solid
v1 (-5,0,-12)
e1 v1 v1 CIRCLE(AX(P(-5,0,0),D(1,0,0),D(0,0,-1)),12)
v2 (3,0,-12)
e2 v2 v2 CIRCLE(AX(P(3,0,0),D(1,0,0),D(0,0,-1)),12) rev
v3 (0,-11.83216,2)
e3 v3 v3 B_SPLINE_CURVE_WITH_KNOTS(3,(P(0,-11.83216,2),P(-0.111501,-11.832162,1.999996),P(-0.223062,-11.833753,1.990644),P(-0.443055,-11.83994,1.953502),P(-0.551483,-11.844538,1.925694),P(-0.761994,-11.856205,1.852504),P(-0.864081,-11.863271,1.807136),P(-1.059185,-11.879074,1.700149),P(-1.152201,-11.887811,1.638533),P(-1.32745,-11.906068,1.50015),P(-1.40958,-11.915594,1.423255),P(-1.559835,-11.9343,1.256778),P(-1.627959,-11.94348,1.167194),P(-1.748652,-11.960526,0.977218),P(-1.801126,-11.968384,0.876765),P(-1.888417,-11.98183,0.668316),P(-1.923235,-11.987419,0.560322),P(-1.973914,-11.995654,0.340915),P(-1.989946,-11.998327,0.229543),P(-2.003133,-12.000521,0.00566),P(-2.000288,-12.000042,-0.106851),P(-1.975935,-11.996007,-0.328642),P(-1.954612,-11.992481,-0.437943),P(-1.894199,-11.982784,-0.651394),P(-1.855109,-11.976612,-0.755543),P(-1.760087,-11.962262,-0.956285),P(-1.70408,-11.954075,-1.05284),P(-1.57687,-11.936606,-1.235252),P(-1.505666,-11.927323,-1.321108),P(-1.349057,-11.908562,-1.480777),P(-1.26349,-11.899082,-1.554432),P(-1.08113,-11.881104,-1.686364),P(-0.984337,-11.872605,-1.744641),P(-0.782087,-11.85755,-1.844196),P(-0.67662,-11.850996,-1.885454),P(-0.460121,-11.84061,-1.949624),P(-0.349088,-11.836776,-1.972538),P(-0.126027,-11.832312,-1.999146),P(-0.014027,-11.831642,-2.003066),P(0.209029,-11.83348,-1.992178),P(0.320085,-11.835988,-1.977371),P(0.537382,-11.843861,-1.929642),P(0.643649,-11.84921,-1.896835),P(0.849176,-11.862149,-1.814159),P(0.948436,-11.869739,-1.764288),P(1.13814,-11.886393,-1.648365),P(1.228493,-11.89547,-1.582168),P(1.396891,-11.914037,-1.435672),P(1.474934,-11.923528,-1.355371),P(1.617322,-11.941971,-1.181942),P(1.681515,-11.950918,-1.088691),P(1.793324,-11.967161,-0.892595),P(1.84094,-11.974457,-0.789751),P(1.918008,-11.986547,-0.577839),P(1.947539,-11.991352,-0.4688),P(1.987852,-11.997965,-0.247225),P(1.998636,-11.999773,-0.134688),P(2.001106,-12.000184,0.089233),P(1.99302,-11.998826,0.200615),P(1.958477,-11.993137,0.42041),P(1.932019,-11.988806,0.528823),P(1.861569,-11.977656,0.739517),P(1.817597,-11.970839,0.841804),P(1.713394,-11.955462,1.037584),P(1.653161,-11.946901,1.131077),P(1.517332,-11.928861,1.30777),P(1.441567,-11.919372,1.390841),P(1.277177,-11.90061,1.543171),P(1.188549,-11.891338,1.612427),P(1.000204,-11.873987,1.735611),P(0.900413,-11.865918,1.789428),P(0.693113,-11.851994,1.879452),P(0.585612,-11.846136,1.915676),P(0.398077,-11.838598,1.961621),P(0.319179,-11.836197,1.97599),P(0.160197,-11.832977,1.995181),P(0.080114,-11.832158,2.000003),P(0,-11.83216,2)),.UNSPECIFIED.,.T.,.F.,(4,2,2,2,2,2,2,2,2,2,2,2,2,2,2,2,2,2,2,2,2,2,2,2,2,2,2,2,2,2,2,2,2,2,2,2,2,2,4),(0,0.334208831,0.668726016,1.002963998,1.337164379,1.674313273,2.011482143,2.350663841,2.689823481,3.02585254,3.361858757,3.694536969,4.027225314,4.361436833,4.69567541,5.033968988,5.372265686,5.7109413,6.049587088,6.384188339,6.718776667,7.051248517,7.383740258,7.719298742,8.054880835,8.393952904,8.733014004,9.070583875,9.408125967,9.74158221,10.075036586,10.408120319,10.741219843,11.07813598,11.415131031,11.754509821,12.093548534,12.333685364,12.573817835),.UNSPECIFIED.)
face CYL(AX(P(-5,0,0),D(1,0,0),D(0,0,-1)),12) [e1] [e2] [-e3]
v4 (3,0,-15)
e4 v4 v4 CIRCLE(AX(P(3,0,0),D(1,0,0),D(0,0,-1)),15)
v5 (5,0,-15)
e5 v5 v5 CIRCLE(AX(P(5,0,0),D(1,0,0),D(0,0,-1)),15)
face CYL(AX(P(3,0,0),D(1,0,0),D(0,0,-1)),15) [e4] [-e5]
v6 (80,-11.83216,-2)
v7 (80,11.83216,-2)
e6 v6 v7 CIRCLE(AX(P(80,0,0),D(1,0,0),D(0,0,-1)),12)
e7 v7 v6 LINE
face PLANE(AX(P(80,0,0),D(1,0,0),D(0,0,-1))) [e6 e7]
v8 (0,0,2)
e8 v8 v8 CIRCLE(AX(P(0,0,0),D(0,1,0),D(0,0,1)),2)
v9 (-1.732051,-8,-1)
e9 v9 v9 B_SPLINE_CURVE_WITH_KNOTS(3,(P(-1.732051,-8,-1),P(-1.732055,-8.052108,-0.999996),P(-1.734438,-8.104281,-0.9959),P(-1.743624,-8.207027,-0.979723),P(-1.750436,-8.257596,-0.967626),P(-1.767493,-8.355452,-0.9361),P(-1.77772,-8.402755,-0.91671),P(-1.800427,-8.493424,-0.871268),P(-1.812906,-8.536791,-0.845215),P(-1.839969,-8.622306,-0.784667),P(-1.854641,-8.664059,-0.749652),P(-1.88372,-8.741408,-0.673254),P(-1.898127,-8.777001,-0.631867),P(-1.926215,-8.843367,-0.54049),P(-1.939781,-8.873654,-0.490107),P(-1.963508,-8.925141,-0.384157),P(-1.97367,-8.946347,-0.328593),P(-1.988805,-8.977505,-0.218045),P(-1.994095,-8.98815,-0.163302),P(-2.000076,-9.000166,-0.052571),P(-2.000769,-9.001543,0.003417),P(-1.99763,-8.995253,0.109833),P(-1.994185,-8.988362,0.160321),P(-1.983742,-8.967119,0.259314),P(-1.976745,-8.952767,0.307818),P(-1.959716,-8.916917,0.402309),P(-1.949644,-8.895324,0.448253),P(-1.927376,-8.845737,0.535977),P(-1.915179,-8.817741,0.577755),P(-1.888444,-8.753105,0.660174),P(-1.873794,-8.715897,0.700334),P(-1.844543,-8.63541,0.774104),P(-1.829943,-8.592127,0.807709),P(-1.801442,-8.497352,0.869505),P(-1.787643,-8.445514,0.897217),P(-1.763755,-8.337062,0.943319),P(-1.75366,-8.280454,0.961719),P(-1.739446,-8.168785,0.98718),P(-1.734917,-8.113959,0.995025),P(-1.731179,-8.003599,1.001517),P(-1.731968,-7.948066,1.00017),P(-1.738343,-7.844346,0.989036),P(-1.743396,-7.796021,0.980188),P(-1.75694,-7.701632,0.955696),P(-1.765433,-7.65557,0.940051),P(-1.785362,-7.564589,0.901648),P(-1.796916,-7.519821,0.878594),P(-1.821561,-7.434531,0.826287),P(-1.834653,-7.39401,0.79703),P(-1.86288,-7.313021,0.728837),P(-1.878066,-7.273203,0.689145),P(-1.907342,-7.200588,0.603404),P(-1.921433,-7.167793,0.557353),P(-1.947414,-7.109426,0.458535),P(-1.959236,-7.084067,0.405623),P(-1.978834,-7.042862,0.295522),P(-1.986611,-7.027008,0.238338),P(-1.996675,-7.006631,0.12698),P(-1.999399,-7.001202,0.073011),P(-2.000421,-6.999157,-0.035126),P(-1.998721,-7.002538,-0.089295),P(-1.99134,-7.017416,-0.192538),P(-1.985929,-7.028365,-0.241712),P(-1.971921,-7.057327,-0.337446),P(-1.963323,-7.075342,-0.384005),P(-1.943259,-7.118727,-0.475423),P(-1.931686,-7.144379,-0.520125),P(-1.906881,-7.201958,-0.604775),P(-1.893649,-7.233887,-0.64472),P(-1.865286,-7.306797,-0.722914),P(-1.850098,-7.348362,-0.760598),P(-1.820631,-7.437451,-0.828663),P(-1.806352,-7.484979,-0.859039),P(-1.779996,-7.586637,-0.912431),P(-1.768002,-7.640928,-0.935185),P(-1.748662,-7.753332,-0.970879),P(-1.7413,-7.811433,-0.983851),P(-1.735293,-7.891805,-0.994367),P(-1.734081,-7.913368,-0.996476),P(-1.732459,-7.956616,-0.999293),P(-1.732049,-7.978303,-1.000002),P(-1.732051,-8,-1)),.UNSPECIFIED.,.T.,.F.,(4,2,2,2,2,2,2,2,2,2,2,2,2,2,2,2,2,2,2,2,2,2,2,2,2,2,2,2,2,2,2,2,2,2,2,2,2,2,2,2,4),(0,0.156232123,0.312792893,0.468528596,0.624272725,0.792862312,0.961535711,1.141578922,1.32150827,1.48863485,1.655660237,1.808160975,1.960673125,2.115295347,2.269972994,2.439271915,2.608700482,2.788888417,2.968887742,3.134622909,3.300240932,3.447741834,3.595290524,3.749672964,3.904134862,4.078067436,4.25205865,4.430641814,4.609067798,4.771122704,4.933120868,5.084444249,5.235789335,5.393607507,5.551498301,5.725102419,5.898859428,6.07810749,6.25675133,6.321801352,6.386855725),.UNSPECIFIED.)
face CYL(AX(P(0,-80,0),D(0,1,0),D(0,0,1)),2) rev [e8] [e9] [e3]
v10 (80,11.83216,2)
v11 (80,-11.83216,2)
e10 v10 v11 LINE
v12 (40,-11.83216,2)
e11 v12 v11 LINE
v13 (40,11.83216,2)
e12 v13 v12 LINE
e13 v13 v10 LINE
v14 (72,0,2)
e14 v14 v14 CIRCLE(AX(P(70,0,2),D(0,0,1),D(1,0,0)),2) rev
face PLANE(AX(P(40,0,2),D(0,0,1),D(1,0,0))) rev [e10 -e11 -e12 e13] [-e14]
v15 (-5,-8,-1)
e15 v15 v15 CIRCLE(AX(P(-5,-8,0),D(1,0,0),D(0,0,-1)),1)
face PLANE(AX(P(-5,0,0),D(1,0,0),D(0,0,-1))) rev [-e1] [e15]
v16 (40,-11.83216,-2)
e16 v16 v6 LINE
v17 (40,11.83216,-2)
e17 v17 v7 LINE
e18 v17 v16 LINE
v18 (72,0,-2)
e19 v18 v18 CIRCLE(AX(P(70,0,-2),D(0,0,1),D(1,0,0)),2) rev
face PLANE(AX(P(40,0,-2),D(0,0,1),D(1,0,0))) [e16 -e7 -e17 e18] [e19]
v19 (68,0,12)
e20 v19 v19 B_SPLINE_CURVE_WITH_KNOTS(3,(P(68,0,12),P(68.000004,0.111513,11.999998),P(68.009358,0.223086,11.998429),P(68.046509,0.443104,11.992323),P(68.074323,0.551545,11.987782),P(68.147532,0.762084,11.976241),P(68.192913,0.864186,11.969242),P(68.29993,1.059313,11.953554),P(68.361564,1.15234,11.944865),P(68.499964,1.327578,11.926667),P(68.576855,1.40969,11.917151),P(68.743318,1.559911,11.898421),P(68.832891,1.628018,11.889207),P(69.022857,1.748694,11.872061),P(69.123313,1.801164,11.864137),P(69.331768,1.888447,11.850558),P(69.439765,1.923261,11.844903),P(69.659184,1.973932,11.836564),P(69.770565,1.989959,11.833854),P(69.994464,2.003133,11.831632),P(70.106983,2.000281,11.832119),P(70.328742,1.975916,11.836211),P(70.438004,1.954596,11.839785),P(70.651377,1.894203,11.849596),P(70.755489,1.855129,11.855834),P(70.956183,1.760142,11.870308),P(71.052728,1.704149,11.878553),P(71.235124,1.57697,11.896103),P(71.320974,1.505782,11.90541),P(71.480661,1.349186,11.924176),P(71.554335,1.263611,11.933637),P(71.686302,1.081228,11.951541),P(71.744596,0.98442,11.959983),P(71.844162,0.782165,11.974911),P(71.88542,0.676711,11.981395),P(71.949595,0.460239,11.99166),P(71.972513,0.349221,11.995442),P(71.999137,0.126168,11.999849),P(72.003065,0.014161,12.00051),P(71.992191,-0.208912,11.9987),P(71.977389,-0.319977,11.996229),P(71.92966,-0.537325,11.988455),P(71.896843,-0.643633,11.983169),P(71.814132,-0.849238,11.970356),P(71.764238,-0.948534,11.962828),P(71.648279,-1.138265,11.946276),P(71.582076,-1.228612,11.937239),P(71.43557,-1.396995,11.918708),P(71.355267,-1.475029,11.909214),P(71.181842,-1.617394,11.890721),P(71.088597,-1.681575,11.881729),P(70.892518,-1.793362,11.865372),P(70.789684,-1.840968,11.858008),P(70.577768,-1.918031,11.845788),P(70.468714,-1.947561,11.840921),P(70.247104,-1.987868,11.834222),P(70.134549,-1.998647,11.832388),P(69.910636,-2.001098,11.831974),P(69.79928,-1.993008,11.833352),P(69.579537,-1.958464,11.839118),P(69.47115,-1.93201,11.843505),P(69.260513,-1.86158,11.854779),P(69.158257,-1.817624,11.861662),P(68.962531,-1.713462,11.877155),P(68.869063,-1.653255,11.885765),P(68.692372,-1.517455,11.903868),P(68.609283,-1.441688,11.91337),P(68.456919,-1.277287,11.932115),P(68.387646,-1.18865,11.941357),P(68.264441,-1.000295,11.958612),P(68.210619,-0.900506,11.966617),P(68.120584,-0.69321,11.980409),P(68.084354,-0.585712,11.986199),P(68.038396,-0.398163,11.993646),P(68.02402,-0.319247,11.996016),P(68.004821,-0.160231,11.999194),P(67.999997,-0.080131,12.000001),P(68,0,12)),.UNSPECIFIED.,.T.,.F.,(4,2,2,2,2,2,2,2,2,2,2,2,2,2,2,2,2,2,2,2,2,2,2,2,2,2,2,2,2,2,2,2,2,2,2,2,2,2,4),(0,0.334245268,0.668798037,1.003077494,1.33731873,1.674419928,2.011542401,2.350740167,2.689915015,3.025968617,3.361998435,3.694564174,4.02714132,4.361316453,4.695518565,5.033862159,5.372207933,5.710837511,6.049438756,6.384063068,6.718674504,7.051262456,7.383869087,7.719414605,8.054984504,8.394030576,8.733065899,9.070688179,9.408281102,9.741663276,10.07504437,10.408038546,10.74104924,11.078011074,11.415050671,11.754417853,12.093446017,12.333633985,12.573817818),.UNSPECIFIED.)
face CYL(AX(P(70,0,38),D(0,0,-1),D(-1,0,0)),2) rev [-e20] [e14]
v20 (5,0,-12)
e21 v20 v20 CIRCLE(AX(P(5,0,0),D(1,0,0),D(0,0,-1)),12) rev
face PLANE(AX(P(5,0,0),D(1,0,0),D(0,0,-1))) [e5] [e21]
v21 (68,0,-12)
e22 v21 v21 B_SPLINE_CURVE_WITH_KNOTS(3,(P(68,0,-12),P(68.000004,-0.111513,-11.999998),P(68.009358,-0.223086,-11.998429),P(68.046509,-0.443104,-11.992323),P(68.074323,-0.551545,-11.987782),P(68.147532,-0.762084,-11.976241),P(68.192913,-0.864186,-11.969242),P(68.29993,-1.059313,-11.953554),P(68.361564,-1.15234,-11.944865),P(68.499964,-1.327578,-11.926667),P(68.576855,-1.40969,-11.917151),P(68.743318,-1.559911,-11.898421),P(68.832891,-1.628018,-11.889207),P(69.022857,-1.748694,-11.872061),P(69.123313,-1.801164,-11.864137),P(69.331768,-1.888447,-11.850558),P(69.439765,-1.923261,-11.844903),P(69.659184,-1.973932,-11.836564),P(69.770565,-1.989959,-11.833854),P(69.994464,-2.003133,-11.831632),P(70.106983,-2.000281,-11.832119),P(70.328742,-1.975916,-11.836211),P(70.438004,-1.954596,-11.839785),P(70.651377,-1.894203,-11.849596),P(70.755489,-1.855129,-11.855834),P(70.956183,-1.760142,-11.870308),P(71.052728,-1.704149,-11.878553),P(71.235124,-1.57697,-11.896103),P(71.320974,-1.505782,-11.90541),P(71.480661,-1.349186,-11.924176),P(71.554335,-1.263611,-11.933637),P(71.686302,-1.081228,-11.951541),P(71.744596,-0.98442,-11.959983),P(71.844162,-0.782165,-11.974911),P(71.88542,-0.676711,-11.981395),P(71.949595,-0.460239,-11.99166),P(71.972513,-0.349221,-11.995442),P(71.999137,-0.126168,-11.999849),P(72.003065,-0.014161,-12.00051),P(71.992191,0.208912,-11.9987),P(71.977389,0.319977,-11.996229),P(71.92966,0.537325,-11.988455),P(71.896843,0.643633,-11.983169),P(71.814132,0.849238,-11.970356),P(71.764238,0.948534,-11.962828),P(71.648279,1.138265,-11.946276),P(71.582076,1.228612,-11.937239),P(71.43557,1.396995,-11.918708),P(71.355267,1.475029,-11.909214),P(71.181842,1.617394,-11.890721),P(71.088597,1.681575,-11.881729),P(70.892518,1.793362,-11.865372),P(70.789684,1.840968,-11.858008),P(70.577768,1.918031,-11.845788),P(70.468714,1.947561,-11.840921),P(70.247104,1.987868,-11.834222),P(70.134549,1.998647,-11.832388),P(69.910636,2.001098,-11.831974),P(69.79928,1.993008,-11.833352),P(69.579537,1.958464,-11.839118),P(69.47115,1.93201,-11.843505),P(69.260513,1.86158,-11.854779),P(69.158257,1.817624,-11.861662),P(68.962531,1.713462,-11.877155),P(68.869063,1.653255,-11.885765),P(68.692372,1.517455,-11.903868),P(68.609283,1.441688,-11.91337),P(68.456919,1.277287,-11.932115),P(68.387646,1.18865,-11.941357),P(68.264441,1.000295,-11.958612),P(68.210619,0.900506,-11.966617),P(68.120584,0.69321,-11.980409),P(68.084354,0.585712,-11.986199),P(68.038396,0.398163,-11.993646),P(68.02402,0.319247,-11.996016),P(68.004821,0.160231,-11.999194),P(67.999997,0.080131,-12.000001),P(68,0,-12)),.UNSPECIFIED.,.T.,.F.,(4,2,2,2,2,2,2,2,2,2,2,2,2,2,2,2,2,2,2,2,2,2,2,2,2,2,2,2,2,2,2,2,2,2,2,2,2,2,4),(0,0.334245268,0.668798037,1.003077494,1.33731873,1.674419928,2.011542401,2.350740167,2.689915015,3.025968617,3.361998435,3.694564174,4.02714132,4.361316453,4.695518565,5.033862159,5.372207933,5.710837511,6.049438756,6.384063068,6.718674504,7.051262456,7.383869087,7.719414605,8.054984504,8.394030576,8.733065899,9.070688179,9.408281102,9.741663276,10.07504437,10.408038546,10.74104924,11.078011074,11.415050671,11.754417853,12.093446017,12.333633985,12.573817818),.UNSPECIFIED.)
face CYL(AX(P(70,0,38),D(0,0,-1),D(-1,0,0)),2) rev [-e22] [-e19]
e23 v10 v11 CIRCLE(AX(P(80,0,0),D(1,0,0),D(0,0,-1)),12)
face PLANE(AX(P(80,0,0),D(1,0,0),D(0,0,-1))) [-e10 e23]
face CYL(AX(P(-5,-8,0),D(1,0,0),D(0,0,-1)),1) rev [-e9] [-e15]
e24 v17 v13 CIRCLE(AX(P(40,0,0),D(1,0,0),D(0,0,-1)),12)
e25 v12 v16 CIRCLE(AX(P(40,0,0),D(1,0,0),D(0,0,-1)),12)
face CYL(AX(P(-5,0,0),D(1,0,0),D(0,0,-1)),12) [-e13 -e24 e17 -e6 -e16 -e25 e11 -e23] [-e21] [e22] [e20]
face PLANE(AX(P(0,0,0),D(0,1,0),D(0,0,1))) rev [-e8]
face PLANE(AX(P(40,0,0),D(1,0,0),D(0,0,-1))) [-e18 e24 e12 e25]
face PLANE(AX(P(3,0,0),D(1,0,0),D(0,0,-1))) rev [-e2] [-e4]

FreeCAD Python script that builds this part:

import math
import FreeCAD as App
import Part
import Sketcher
Q = App.Units.Quantity

doc = App.newDocument("Part")
body = doc.addObject("PartDesign::Body", "Body")

# Sketch on YZ plane
sketch1 = doc.addObject("Sketcher::SketchObject", "Sketch")
body.addObject(sketch1)
sketch1.AttachmentSupport = (doc.YZ_Plane, [""])
sketch1.MapMode = "FlatFace"
sketch1.addGeometry(Part.Circle(App.Vector(0, 0, 0), App.Vector(0, 0, 1), 12), False)
sketch1.addConstraint([
    Sketcher.Constraint("Coincident", 0, 3, -1, 1),
    Sketcher.Constraint("Diameter", 0, Q("24 mm")),
])
pad1 = doc.addObject("PartDesign::Pad", "Pad")
body.addObject(pad1)
pad1.Profile = sketch1
pad1.Type = "TwoLengths"
pad1.Length = 80
pad1.Length2 = 5

# Sketch on XZ plane
sketch2 = doc.addObject("Sketcher::SketchObject", "Sketch001")
body.addObject(sketch2)
sketch2.AttachmentSupport = (doc.XZ_Plane, [""])
sketch2.MapMode = "FlatFace"
sketch2.addGeometry(Part.Circle(App.Vector(0, 0, 0), App.Vector(0, 0, 1), 2), False)
sketch2.addConstraint([
    Sketcher.Constraint("Coincident", 0, 3, -1, 1),
    Sketcher.Constraint("Diameter", 0, Q("4 mm")),
])
pocket1 = doc.addObject("PartDesign::Pocket", "Pocket")
body.addObject(pocket1)
pocket1.Profile = sketch2
pocket1.Length = 80
pocket1.Reversed = True

# Sketch on YZ plane
sketch3 = doc.addObject("Sketcher::SketchObject", "Sketch002")
body.addObject(sketch3)
sketch3.AttachmentSupport = (doc.YZ_Plane, [""])
sketch3.MapMode = "FlatFace"
sketch3.AttachmentOffset = App.Placement(App.Vector(0, 0, 5), App.Rotation())
sketch3.addGeometry(Part.Circle(App.Vector(0, 0, 0), App.Vector(0, 0, 1), 15), False)
sketch3.addConstraint([
    Sketcher.Constraint("Coincident", 0, 3, -1, 1),
    Sketcher.Constraint("Diameter", 0, Q("30 mm")),
])
pad2 = doc.addObject("PartDesign::Pad", "Pad001")
body.addObject(pad2)
pad2.Profile = sketch3
pad2.Length = 2
pad2.Reversed = True

# Sketch on YZ plane
sketch4 = doc.addObject("Sketcher::SketchObject", "Sketch003")
body.addObject(sketch4)
sketch4.AttachmentSupport = (doc.YZ_Plane, [""])
sketch4.MapMode = "FlatFace"
sketch4.AttachmentOffset = App.Placement(App.Vector(0, 0, 40), App.Rotation())
sketch4.addGeometry([
    Part.ArcOfCircle(Part.Circle(App.Vector(0, 0, 0), App.Vector(0, 0, 1), 12), math.radians(-9.59), math.radians(9.59)),
    Part.LineSegment(App.Vector(11.8, 2, 0), App.Vector(-11.8, 2, 0)),
    Part.ArcOfCircle(Part.Circle(App.Vector(0, 0, 0), App.Vector(0, 0, 1), 12), math.radians(170.41), math.radians(189.59)),
    Part.LineSegment(App.Vector(-11.8, -2, 0), App.Vector(11.8, -2, 0)),
], False)
sketch4.addConstraint([
    Sketcher.Constraint("Coincident", 0, 2, 1, 1),
    Sketcher.Constraint("Coincident", 1, 2, 2, 1),
    Sketcher.Constraint("Coincident", 2, 2, 3, 1),
    Sketcher.Constraint("Coincident", 3, 2, 0, 1),
    Sketcher.Constraint("Horizontal", 1),
    Sketcher.Constraint("Horizontal", 3),
    Sketcher.Constraint("Coincident", 0, 3, -1, 1),
    Sketcher.Constraint("Coincident", 2, 3, -1, 1),
    Sketcher.Constraint("Equal", 0, 2),
    Sketcher.Constraint("Vertical", 1, 2, 2, 2),
    Sketcher.Constraint("Radius", 0, Q("12 mm")),
    Sketcher.Constraint("DistanceY", -1, 1, 0, 2, Q("2 mm")),
])
pocket2 = doc.addObject("PartDesign::Pocket", "Pocket001")
body.addObject(pocket2)
pocket2.Profile = sketch4
pocket2.Length = 40
pocket2.Reversed = True

# Sketch on XY plane
sketch5 = doc.addObject("Sketcher::SketchObject", "Sketch004")
body.addObject(sketch5)
sketch5.AttachmentSupport = (doc.XY_Plane, [""])
sketch5.MapMode = "FlatFace"
sketch5.AttachmentOffset = App.Placement(App.Vector(0, 0, -2), App.Rotation())
sketch5.addGeometry(Part.Circle(App.Vector(70, 0, 0), App.Vector(0, 0, 1), 2), False)
sketch5.addConstraint([
    Sketcher.Constraint("PointOnObject", 0, 3, -1),
    Sketcher.Constraint("Diameter", 0, Q("4 mm")),
    Sketcher.Constraint("DistanceX", -1, 1, 0, 3, Q("70 mm")),
])
pocket3 = doc.addObject("PartDesign::Pocket", "Pocket002")
body.addObject(pocket3)
pocket3.Profile = sketch5
pocket3.Type = "ThroughAll"
pocket3.Midplane = True

# Sketch on YZ plane
sketch6 = doc.addObject("Sketcher::SketchObject", "Sketch005")
body.addObject(sketch6)
sketch6.AttachmentSupport = (doc.YZ_Plane, [""])
sketch6.MapMode = "FlatFace"
sketch6.addGeometry(Part.Circle(App.Vector(-8, 0, 0), App.Vector(0, 0, 1), 1), False)
sketch6.addConstraint([
    Sketcher.Constraint("PointOnObject", 0, 3, -1),
    Sketcher.Constraint("Diameter", 0, Q("2 mm")),
    Sketcher.Constraint("DistanceX", 0, 3, -1, 1, Q("8 mm")),
])
pocket4 = doc.addObject("PartDesign::Pocket", "Pocket003")
body.addObject(pocket4)
pocket4.Profile = sketch6
pocket4.Type = "ThroughAll"

doc.recompute()
